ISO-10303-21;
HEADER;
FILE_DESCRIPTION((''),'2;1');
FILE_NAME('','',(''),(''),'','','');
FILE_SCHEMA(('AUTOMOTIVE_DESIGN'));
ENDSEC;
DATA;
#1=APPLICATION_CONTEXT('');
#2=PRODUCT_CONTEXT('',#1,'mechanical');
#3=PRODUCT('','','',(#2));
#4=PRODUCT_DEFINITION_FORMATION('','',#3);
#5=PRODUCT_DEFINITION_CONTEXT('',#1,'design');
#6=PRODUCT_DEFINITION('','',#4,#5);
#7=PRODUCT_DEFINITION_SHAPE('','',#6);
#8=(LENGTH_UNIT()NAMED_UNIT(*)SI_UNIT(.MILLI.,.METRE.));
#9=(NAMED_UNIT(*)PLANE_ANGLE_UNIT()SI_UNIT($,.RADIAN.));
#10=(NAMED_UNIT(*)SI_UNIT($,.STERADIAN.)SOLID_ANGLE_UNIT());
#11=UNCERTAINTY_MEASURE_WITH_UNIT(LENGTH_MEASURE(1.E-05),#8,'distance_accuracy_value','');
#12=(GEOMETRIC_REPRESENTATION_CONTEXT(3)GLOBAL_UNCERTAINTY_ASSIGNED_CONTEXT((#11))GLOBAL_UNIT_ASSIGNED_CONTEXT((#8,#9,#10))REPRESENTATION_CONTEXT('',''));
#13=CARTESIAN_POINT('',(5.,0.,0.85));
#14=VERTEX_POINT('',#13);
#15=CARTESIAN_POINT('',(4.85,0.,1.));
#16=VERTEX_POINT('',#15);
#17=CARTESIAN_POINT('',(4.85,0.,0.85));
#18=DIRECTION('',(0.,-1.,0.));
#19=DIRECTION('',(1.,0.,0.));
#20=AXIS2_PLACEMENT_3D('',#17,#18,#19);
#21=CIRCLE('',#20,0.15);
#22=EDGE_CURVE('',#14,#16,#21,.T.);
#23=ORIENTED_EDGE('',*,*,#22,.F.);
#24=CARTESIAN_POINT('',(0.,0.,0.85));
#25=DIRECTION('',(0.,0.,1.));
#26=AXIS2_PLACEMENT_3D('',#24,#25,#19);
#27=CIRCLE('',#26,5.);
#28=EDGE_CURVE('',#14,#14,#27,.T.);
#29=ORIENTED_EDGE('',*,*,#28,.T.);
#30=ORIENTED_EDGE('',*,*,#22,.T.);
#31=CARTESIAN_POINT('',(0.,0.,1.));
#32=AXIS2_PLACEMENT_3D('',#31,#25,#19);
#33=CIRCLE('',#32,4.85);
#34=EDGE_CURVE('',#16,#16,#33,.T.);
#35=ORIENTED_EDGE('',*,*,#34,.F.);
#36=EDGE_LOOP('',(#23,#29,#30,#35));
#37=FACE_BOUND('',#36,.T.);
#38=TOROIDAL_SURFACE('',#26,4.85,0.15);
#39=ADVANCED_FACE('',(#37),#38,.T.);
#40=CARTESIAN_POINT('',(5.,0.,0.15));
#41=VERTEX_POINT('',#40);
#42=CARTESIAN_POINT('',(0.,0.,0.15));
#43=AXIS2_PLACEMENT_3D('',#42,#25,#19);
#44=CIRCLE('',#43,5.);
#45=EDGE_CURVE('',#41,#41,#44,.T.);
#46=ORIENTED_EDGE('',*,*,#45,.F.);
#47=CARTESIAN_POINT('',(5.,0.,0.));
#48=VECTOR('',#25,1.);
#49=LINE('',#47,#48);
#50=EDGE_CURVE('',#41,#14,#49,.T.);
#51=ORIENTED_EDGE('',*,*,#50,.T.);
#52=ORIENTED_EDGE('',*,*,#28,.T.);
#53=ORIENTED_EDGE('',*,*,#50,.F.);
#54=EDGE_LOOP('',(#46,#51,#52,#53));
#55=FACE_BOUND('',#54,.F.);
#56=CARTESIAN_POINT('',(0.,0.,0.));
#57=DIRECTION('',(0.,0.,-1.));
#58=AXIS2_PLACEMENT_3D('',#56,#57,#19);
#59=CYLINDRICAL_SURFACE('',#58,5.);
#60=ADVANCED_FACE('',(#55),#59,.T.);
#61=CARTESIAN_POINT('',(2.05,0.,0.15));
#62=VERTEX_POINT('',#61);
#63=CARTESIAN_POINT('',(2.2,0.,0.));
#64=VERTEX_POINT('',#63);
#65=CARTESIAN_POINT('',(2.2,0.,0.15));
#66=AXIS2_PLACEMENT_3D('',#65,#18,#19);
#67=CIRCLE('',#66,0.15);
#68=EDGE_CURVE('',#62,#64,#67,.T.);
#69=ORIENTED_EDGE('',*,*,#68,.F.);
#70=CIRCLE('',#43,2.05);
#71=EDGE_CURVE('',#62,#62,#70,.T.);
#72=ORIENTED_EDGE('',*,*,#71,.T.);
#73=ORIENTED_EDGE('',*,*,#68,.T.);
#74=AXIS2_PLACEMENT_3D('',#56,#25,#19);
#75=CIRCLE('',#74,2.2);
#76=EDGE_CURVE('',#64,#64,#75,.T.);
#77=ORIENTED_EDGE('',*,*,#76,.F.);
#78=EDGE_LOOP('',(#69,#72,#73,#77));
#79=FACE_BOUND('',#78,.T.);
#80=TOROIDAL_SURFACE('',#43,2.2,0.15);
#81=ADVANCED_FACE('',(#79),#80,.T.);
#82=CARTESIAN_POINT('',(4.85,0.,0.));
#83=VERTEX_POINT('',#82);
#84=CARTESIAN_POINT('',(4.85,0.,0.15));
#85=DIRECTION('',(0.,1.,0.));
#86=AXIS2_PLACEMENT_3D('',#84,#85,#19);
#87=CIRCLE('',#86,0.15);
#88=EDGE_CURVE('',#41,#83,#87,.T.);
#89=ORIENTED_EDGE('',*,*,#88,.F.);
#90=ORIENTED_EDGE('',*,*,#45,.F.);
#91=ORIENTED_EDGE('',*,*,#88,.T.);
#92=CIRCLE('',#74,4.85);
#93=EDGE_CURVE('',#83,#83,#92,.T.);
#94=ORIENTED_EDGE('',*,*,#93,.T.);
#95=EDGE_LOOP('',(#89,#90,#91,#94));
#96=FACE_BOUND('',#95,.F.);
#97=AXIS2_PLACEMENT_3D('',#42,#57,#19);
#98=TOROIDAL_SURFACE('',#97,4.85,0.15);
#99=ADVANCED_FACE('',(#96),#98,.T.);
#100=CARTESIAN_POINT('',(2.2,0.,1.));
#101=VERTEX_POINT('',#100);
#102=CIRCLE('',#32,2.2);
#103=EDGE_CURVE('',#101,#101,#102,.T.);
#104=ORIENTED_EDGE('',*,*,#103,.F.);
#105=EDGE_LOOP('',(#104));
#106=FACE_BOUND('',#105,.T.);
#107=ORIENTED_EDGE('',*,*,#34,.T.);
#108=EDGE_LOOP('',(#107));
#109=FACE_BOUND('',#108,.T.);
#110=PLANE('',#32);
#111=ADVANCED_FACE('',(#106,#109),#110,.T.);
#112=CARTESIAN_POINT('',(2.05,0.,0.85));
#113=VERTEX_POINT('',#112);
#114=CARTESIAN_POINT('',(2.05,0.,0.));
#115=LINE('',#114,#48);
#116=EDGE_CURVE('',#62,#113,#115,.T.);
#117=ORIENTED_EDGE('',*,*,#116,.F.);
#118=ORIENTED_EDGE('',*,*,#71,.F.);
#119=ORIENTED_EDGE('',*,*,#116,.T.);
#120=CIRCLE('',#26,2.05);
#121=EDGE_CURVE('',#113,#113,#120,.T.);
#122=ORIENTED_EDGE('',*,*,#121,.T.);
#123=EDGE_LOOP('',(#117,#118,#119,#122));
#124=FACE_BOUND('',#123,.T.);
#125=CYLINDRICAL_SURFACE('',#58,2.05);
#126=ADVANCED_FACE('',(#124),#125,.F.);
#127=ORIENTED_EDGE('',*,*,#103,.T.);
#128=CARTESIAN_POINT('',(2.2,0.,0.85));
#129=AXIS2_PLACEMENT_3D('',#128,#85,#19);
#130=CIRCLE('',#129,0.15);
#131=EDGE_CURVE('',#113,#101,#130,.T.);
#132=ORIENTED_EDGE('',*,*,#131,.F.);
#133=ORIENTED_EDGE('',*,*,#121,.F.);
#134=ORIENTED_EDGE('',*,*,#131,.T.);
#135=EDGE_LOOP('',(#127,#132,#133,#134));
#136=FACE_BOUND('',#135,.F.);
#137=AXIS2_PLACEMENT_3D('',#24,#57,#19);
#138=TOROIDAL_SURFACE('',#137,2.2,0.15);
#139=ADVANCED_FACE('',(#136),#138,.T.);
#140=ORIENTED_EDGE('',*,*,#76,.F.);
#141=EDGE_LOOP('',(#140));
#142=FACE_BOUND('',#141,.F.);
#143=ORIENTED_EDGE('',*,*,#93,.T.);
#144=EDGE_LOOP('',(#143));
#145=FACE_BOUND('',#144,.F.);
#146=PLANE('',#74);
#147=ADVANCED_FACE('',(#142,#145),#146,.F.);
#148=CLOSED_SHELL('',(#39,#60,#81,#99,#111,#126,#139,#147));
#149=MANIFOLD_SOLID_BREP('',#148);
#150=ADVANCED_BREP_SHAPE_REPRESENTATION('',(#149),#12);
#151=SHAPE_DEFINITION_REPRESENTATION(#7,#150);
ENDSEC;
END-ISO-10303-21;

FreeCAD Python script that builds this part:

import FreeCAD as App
import Part
import Sketcher

V = App.Vector


def edges_at(feature, points):
    """Names of the edges that pass closest to the given points."""
    edges = feature.Shape.Edges
    near = lambda p: min(range(len(edges)), key=lambda i: edges[i].distToShape(Part.Vertex(*p))[0])
    return sorted({f"Edge{near(p) + 1}" for p in points})

doc = App.newDocument("Part")
body = doc.addObject("PartDesign::Body", "Body")

# Sketch on XY plane
sketch1 = doc.addObject("Sketcher::SketchObject", "Sketch")
body.addObject(sketch1)
sketch1.AttachmentSupport = (doc.XY_Plane, [""])
sketch1.MapMode = "FlatFace"
sketch1.addGeometry([
    Part.Circle(V(0, 0, 0), V(0, 0, 1), 5),
    Part.Circle(V(0, 0, 0), V(0, 0, 1), 2),
], False)
sketch1.addConstraint([
    Sketcher.Constraint("Coincident", 0, 3, -1, 1),
    Sketcher.Constraint("Coincident", 1, 3, -1, 1),
    Sketcher.Constraint("Diameter", 0, 10.0),
    Sketcher.Constraint("Diameter", 1, 4.1),
])
pad1 = doc.addObject("PartDesign::Pad", "Pad")
body.addObject(pad1)
pad1.Profile = sketch1
pad1.Length = 1
doc.recompute()

fillet = doc.addObject("PartDesign::Fillet", "Fillet")
body.addObject(fillet)
fillet.Base = (pad1, edges_at(pad1, [
    (-5, 0, 1),
    (-5, 0, 0),
    (-2.05, 0, 1),
    (-2.05, 0, 0),
]))
fillet.Radius = 0.15

doc.recompute()
